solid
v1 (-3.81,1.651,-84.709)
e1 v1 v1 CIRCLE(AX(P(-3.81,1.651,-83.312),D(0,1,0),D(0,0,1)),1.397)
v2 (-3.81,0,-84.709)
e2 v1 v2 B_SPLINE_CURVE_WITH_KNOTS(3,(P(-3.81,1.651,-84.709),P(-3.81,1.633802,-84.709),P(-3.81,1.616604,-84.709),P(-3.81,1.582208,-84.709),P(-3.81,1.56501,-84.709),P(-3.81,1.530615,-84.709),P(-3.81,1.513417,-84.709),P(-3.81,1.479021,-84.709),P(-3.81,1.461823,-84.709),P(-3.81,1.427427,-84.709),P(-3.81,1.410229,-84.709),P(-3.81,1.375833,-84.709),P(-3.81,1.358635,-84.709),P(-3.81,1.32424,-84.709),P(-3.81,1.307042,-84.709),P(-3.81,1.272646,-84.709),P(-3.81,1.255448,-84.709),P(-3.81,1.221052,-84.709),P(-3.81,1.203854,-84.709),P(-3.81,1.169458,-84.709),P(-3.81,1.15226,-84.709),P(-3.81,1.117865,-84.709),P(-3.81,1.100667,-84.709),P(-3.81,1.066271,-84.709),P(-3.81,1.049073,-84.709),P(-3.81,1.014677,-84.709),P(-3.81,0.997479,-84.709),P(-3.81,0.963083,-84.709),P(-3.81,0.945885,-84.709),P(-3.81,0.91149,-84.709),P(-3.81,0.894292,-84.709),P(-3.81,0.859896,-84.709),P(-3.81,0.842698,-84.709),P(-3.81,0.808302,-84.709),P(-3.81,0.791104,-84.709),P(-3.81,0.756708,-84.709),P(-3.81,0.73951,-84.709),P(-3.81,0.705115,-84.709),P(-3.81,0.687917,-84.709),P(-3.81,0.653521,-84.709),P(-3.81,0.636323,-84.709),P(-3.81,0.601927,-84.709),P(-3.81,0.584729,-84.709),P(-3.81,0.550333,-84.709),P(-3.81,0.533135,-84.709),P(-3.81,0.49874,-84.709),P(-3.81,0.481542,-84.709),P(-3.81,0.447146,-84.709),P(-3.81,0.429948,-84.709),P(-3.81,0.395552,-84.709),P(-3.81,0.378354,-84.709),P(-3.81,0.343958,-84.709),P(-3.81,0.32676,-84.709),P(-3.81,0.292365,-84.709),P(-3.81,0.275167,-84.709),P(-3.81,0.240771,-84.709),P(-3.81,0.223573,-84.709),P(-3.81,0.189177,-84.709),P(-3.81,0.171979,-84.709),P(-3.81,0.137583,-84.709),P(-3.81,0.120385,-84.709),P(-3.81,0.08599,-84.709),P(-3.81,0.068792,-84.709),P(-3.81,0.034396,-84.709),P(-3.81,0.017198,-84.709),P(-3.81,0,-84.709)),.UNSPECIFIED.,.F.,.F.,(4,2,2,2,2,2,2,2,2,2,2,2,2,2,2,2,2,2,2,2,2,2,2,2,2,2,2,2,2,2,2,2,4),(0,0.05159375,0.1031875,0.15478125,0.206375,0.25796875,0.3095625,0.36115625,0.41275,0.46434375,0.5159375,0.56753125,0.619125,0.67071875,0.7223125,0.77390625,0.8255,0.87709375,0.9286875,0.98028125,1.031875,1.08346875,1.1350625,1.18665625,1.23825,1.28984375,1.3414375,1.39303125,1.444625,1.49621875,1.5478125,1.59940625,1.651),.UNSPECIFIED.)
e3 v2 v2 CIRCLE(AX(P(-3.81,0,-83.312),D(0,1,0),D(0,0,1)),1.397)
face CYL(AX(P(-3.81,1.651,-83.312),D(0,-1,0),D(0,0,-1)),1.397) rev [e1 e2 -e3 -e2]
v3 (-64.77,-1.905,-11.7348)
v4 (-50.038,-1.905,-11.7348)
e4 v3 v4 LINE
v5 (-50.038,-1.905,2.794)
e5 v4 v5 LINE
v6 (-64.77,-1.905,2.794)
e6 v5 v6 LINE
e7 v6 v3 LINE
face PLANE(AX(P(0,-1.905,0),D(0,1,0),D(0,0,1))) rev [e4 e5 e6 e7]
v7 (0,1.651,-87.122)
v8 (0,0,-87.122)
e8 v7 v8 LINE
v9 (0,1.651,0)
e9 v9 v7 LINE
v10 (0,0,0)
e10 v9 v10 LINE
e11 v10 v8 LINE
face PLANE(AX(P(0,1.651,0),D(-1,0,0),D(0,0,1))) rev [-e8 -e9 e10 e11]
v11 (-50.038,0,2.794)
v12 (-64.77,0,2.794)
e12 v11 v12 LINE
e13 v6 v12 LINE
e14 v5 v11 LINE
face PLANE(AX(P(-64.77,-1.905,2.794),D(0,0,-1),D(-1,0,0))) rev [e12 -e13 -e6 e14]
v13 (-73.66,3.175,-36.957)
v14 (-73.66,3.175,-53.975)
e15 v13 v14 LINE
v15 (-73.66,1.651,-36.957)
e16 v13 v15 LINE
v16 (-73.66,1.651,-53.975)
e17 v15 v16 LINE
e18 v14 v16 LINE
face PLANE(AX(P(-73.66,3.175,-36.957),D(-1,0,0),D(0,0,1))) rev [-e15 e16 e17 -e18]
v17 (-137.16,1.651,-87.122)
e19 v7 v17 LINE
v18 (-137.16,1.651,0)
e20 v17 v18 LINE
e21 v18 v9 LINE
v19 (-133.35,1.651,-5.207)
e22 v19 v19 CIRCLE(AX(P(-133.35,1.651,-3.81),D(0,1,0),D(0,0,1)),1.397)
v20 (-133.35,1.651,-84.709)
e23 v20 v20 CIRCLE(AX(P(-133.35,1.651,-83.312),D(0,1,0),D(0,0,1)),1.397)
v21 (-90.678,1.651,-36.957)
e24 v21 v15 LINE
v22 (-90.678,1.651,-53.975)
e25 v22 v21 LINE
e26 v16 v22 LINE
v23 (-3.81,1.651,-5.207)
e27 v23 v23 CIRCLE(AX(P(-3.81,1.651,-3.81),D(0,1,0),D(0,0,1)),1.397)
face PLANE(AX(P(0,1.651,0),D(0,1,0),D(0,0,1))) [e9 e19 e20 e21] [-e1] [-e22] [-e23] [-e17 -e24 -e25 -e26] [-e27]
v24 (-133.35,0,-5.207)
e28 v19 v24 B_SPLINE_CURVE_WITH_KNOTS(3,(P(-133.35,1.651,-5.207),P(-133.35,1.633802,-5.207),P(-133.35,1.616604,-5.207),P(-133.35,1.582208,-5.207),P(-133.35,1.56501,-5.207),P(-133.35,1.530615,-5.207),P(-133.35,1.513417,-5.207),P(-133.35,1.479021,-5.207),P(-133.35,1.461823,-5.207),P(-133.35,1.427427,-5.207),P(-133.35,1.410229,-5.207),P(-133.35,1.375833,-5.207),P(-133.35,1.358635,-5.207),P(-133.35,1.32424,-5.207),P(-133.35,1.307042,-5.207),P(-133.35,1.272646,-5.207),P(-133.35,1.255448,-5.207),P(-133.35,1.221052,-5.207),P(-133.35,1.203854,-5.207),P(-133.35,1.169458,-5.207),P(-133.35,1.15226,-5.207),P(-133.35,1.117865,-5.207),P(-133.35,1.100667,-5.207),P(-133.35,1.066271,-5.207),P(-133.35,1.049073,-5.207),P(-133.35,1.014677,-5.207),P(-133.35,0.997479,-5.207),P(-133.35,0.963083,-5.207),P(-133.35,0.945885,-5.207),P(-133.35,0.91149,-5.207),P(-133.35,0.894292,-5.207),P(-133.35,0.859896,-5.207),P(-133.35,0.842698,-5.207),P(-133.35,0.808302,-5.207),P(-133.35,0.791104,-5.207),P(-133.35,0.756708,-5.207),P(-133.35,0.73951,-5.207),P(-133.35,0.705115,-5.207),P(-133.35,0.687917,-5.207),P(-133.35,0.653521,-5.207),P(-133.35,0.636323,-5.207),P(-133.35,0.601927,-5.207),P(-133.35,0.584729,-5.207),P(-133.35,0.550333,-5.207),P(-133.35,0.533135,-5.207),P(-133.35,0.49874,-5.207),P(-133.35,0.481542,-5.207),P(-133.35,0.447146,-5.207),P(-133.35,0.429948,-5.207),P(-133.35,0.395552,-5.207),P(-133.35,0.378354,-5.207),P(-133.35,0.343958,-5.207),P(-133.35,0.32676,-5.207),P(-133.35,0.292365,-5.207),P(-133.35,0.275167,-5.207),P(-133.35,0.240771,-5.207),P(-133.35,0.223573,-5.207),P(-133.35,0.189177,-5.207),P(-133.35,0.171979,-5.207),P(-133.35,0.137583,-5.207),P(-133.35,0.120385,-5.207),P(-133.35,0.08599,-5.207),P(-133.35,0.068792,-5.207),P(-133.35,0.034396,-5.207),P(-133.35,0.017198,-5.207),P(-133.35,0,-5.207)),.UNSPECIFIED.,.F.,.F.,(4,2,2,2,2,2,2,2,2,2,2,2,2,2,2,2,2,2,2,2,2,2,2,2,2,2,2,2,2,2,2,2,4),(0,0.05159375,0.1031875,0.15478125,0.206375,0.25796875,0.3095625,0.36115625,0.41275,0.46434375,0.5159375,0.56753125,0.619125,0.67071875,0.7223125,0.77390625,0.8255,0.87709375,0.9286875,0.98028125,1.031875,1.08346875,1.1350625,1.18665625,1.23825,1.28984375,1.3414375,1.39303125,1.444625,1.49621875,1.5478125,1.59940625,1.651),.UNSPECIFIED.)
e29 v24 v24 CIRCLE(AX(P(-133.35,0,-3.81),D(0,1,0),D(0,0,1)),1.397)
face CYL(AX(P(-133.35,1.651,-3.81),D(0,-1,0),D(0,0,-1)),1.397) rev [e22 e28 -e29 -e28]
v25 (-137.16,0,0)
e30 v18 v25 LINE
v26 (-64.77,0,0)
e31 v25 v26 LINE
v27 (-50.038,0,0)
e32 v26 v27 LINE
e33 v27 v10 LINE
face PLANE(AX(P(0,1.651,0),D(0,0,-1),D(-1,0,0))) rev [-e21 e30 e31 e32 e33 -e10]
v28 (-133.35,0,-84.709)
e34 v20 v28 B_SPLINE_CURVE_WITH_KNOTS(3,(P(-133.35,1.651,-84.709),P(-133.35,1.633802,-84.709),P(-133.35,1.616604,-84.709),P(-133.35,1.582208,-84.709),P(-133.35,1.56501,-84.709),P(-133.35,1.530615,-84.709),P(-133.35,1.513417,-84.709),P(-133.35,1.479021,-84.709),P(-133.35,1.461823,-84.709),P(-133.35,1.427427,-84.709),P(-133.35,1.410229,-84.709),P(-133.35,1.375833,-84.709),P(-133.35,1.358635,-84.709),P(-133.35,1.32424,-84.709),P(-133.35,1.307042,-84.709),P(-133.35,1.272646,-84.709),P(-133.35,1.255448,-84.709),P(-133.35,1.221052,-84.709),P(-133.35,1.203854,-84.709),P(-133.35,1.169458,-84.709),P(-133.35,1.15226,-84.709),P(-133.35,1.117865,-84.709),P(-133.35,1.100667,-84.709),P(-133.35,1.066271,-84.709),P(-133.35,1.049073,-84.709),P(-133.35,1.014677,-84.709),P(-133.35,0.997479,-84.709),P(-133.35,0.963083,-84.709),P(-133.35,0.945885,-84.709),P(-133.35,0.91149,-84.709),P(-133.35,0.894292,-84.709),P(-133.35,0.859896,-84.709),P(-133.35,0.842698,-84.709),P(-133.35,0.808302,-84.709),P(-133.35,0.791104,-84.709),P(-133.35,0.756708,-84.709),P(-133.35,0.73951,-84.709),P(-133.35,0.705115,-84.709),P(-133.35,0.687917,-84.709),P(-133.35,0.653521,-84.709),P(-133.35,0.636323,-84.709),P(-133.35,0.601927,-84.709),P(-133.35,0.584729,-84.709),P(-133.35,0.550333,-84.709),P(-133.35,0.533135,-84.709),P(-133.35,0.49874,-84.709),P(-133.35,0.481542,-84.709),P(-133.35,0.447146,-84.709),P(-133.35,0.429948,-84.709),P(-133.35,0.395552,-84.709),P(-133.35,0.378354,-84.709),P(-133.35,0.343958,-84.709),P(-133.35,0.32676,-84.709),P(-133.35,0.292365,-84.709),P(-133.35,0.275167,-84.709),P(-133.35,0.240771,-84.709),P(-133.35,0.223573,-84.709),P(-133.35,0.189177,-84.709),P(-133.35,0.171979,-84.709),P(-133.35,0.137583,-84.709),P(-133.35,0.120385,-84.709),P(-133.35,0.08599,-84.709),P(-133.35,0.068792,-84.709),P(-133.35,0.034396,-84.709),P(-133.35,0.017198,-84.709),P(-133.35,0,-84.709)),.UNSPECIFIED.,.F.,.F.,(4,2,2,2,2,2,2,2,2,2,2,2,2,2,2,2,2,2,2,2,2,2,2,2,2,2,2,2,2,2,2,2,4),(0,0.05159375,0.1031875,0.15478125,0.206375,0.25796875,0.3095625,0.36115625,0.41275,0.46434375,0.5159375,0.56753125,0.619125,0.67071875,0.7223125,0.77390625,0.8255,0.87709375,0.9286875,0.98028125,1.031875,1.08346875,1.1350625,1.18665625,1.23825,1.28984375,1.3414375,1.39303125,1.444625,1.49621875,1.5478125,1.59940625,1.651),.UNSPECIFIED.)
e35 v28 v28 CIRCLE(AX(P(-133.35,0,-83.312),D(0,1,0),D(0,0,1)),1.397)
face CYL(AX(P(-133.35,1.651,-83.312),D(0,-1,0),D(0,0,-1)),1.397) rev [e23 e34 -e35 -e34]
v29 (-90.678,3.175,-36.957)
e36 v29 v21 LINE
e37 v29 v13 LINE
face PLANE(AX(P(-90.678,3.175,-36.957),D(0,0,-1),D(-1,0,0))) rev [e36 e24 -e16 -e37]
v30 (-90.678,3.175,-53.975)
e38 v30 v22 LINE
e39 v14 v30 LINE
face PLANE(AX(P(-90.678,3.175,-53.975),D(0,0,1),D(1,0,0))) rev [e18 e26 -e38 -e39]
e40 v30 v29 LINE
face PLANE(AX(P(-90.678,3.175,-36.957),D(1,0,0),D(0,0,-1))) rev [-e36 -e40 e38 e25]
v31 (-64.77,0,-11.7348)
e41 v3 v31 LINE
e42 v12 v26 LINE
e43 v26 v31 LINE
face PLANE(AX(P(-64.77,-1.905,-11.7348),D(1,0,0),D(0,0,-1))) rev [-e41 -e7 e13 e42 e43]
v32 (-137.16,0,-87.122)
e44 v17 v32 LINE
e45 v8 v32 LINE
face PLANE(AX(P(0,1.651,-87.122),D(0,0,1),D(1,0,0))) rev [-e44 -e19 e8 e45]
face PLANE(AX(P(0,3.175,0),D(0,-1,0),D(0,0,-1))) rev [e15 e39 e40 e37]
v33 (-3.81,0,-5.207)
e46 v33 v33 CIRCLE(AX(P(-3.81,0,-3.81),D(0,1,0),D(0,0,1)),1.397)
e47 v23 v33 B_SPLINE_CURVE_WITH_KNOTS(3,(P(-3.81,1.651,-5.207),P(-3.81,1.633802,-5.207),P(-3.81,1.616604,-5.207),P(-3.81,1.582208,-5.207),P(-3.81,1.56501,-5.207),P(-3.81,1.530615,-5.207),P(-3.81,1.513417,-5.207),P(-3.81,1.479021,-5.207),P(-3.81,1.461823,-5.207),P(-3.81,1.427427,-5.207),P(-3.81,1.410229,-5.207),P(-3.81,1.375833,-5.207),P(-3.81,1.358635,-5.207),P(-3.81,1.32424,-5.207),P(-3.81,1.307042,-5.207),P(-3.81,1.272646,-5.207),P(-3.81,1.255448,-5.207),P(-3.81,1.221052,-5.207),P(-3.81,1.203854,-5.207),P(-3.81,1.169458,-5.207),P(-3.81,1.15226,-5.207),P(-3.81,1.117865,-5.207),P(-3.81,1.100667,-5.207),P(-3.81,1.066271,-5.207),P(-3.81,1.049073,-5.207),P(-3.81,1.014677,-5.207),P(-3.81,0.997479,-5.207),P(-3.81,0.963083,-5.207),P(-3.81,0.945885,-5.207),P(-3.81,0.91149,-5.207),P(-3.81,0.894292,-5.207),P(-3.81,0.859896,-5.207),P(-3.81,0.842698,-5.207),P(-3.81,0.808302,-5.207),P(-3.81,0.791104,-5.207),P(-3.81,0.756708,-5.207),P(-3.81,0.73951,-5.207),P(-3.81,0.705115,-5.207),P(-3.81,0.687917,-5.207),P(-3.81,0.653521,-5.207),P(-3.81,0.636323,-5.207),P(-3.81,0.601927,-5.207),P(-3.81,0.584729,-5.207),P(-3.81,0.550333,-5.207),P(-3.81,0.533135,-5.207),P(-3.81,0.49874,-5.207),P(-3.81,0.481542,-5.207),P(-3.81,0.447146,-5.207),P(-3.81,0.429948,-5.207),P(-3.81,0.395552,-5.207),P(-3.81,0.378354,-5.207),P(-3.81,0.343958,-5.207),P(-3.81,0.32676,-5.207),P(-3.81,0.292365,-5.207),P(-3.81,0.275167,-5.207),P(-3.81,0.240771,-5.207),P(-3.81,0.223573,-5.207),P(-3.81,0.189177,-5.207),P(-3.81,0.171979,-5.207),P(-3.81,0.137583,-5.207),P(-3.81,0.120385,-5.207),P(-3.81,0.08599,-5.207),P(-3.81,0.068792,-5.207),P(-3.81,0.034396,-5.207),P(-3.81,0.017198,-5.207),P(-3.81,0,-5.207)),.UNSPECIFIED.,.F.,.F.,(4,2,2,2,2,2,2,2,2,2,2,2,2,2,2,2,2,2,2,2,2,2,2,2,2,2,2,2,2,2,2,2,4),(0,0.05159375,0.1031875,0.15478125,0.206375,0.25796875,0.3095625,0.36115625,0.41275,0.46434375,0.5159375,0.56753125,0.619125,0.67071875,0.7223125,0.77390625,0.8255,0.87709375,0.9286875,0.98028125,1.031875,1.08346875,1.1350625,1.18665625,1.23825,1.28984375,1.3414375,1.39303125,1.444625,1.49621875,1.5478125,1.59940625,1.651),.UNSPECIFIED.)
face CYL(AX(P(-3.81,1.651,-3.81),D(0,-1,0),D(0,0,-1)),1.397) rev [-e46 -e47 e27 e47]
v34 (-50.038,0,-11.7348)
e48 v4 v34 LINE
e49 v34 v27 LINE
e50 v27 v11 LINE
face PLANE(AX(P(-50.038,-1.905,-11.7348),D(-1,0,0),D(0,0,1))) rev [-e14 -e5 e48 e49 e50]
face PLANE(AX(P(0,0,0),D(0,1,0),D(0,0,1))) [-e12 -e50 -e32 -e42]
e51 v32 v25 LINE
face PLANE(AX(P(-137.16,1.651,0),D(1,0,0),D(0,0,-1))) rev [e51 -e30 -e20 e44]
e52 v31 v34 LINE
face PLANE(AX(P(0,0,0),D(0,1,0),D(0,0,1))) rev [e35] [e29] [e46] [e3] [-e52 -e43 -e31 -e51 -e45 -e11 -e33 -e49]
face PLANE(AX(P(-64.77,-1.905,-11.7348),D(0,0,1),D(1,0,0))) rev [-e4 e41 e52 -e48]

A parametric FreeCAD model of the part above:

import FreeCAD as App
import Part
import Sketcher

V = App.Vector
Q = App.Units.Quantity

doc = App.newDocument("Part")
body = doc.addObject("PartDesign::Body", "Body")

sketch1 = body.newObject("Sketcher::SketchObject", "Sketch")
sketch1.AttachmentSupport = (doc.getObject("XZ_Plane"), [""])
sketch1.MapMode = "FlatFace"
sketch1.addGeometry([
    Part.LineSegment(V(-137.2, -87.1, 0), V(-137.2, 0, 0)),
    Part.LineSegment(V(-137.2, 0, 0), V(0, 0, 0)),
    Part.LineSegment(V(0, 0, 0), V(0, -87.1, 0)),
    Part.LineSegment(V(0, -87.1, 0), V(-137.2, -87.1, 0)),
    Part.Circle(V(-133.3, -3.8, 0), V(0, 0, 1), 1.4),
    Part.Circle(V(-3.8, -3.8, 0), V(0, 0, 1), 1.4),
    Part.Circle(V(-133.3, -83.3, 0), V(0, 0, 1), 1.4),
    Part.Circle(V(-3.8, -83.3, 0), V(0, 0, 1), 1.4),
], False)
sketch1.addConstraint([
    Sketcher.Constraint("Coincident", 0, 2, 1, 1),
    Sketcher.Constraint("Coincident", 1, 2, 2, 1),
    Sketcher.Constraint("Coincident", 2, 2, 3, 1),
    Sketcher.Constraint("Coincident", 3, 2, 0, 1),
    Sketcher.Constraint("Vertical", 0),
    Sketcher.Constraint("Horizontal", 1),
    Sketcher.Constraint("Vertical", 2),
    Sketcher.Constraint("Horizontal", 3),
    Sketcher.Constraint("Coincident", 1, 2, -1, 1),
    Sketcher.Constraint("Equal", 4, 5),
    Sketcher.Constraint("Equal", 5, 6),
    Sketcher.Constraint("Equal", 6, 7),
    Sketcher.Constraint("Horizontal", 4, 3, 5, 3),
    Sketcher.Constraint("Horizontal", 6, 3, 7, 3),
    Sketcher.Constraint("Vertical", 4, 3, 6, 3),
    Sketcher.Constraint("Vertical", 5, 3, 7, 3),
    Sketcher.Constraint("Diameter", 4, Q("0.11 in")),
    Sketcher.Constraint("DistanceX", 1, 1, 1, 2, Q("5.4 in")),
    Sketcher.Constraint("DistanceY", 0, 1, 0, 2, Q("3.43 in")),
    Sketcher.Constraint("DistanceX", 4, 3, 5, 3, Q("5.1 in")),
    Sketcher.Constraint("DistanceX", 4, 3, -1, 1, Q("5.25 in")),
    Sketcher.Constraint("DistanceY", 4, 3, -1, 1, Q("0.15 in")),
    Sketcher.Constraint("DistanceY", 6, 3, -1, 1, Q("3.28 in")),
])
pad1 = body.newObject("PartDesign::Pad", "Pad")
pad1.Profile = sketch1
pad1.Length = Q("0.065 in")
pad1.Reversed = True

sketch2 = body.newObject("Sketcher::SketchObject", "Sketch001")
sketch2.AttachmentSupport = (doc.getObject("XZ_Plane"), [""])
sketch2.MapMode = "FlatFace"
sketch2.addGeometry([
    Part.LineSegment(V(-65, 3, 0), V(-65, -12, 0)),
    Part.LineSegment(V(-65, -12, 0), V(-50, -12, 0)),
    Part.LineSegment(V(-50, -12, 0), V(-50, 3, 0)),
    Part.LineSegment(V(-50, 3, 0), V(-65, 3, 0)),
], False)
sketch2.addConstraint([
    Sketcher.Constraint("Coincident", 0, 2, 1, 1),
    Sketcher.Constraint("Coincident", 1, 2, 2, 1),
    Sketcher.Constraint("Coincident", 2, 2, 3, 1),
    Sketcher.Constraint("Coincident", 3, 2, 0, 1),
    Sketcher.Constraint("Vertical", 0),
    Sketcher.Constraint("Horizontal", 1),
    Sketcher.Constraint("Vertical", 2),
    Sketcher.Constraint("Horizontal", 3),
    Sketcher.Constraint("DistanceX", 1, 1, 1, 2, Q("0.58 in")),
    Sketcher.Constraint("DistanceY", 0, 2, 0, 1, Q("0.572 in")),
    Sketcher.Constraint("DistanceX", 0, 2, -1, 1, Q("2.55 in")),
    Sketcher.Constraint("DistanceY", -1, 1, 2, 2, Q("0.11 in")),
])
pad2 = body.newObject("PartDesign::Pad", "Pad001")
pad2.Profile = sketch2
pad2.Length = Q("0.075 in")

sketch3 = body.newObject("Sketcher::SketchObject", "Sketch002")
sketch3.AttachmentSupport = (doc.getObject("XZ_Plane"), [""])
sketch3.MapMode = "FlatFace"
sketch3.AttachmentOffset = App.Placement(V(0, 0, -0.065 * 25.4), App.Rotation())
sketch3.addGeometry([
    Part.LineSegment(V(-91, -54, 0), V(-91, -37, 0)),
    Part.LineSegment(V(-91, -37, 0), V(-74, -37, 0)),
    Part.LineSegment(V(-74, -37, 0), V(-74, -54, 0)),
    Part.LineSegment(V(-74, -54, 0), V(-91, -54, 0)),
], False)
sketch3.addConstraint([
    Sketcher.Constraint("Coincident", 0, 2, 1, 1),
    Sketcher.Constraint("Coincident", 1, 2, 2, 1),
    Sketcher.Constraint("Coincident", 2, 2, 3, 1),
    Sketcher.Constraint("Coincident", 3, 2, 0, 1),
    Sketcher.Constraint("Vertical", 0),
    Sketcher.Constraint("Horizontal", 1),
    Sketcher.Constraint("Vertical", 2),
    Sketcher.Constraint("Horizontal", 3),
    Sketcher.Constraint("Equal", 3, 0),
    Sketcher.Constraint("DistanceX", 1, 1, 1, 2, Q("0.67 in")),
    Sketcher.Constraint("DistanceX", 1, 2, -1, 1, Q("2.9 in")),
    Sketcher.Constraint("DistanceY", 0, 2, -1, 1, Q("1.455 in")),
])
pad3 = body.newObject("PartDesign::Pad", "Pad002")
pad3.Profile = sketch3
pad3.Length = Q("0.06 in")
pad3.Reversed = True

doc.recompute()
